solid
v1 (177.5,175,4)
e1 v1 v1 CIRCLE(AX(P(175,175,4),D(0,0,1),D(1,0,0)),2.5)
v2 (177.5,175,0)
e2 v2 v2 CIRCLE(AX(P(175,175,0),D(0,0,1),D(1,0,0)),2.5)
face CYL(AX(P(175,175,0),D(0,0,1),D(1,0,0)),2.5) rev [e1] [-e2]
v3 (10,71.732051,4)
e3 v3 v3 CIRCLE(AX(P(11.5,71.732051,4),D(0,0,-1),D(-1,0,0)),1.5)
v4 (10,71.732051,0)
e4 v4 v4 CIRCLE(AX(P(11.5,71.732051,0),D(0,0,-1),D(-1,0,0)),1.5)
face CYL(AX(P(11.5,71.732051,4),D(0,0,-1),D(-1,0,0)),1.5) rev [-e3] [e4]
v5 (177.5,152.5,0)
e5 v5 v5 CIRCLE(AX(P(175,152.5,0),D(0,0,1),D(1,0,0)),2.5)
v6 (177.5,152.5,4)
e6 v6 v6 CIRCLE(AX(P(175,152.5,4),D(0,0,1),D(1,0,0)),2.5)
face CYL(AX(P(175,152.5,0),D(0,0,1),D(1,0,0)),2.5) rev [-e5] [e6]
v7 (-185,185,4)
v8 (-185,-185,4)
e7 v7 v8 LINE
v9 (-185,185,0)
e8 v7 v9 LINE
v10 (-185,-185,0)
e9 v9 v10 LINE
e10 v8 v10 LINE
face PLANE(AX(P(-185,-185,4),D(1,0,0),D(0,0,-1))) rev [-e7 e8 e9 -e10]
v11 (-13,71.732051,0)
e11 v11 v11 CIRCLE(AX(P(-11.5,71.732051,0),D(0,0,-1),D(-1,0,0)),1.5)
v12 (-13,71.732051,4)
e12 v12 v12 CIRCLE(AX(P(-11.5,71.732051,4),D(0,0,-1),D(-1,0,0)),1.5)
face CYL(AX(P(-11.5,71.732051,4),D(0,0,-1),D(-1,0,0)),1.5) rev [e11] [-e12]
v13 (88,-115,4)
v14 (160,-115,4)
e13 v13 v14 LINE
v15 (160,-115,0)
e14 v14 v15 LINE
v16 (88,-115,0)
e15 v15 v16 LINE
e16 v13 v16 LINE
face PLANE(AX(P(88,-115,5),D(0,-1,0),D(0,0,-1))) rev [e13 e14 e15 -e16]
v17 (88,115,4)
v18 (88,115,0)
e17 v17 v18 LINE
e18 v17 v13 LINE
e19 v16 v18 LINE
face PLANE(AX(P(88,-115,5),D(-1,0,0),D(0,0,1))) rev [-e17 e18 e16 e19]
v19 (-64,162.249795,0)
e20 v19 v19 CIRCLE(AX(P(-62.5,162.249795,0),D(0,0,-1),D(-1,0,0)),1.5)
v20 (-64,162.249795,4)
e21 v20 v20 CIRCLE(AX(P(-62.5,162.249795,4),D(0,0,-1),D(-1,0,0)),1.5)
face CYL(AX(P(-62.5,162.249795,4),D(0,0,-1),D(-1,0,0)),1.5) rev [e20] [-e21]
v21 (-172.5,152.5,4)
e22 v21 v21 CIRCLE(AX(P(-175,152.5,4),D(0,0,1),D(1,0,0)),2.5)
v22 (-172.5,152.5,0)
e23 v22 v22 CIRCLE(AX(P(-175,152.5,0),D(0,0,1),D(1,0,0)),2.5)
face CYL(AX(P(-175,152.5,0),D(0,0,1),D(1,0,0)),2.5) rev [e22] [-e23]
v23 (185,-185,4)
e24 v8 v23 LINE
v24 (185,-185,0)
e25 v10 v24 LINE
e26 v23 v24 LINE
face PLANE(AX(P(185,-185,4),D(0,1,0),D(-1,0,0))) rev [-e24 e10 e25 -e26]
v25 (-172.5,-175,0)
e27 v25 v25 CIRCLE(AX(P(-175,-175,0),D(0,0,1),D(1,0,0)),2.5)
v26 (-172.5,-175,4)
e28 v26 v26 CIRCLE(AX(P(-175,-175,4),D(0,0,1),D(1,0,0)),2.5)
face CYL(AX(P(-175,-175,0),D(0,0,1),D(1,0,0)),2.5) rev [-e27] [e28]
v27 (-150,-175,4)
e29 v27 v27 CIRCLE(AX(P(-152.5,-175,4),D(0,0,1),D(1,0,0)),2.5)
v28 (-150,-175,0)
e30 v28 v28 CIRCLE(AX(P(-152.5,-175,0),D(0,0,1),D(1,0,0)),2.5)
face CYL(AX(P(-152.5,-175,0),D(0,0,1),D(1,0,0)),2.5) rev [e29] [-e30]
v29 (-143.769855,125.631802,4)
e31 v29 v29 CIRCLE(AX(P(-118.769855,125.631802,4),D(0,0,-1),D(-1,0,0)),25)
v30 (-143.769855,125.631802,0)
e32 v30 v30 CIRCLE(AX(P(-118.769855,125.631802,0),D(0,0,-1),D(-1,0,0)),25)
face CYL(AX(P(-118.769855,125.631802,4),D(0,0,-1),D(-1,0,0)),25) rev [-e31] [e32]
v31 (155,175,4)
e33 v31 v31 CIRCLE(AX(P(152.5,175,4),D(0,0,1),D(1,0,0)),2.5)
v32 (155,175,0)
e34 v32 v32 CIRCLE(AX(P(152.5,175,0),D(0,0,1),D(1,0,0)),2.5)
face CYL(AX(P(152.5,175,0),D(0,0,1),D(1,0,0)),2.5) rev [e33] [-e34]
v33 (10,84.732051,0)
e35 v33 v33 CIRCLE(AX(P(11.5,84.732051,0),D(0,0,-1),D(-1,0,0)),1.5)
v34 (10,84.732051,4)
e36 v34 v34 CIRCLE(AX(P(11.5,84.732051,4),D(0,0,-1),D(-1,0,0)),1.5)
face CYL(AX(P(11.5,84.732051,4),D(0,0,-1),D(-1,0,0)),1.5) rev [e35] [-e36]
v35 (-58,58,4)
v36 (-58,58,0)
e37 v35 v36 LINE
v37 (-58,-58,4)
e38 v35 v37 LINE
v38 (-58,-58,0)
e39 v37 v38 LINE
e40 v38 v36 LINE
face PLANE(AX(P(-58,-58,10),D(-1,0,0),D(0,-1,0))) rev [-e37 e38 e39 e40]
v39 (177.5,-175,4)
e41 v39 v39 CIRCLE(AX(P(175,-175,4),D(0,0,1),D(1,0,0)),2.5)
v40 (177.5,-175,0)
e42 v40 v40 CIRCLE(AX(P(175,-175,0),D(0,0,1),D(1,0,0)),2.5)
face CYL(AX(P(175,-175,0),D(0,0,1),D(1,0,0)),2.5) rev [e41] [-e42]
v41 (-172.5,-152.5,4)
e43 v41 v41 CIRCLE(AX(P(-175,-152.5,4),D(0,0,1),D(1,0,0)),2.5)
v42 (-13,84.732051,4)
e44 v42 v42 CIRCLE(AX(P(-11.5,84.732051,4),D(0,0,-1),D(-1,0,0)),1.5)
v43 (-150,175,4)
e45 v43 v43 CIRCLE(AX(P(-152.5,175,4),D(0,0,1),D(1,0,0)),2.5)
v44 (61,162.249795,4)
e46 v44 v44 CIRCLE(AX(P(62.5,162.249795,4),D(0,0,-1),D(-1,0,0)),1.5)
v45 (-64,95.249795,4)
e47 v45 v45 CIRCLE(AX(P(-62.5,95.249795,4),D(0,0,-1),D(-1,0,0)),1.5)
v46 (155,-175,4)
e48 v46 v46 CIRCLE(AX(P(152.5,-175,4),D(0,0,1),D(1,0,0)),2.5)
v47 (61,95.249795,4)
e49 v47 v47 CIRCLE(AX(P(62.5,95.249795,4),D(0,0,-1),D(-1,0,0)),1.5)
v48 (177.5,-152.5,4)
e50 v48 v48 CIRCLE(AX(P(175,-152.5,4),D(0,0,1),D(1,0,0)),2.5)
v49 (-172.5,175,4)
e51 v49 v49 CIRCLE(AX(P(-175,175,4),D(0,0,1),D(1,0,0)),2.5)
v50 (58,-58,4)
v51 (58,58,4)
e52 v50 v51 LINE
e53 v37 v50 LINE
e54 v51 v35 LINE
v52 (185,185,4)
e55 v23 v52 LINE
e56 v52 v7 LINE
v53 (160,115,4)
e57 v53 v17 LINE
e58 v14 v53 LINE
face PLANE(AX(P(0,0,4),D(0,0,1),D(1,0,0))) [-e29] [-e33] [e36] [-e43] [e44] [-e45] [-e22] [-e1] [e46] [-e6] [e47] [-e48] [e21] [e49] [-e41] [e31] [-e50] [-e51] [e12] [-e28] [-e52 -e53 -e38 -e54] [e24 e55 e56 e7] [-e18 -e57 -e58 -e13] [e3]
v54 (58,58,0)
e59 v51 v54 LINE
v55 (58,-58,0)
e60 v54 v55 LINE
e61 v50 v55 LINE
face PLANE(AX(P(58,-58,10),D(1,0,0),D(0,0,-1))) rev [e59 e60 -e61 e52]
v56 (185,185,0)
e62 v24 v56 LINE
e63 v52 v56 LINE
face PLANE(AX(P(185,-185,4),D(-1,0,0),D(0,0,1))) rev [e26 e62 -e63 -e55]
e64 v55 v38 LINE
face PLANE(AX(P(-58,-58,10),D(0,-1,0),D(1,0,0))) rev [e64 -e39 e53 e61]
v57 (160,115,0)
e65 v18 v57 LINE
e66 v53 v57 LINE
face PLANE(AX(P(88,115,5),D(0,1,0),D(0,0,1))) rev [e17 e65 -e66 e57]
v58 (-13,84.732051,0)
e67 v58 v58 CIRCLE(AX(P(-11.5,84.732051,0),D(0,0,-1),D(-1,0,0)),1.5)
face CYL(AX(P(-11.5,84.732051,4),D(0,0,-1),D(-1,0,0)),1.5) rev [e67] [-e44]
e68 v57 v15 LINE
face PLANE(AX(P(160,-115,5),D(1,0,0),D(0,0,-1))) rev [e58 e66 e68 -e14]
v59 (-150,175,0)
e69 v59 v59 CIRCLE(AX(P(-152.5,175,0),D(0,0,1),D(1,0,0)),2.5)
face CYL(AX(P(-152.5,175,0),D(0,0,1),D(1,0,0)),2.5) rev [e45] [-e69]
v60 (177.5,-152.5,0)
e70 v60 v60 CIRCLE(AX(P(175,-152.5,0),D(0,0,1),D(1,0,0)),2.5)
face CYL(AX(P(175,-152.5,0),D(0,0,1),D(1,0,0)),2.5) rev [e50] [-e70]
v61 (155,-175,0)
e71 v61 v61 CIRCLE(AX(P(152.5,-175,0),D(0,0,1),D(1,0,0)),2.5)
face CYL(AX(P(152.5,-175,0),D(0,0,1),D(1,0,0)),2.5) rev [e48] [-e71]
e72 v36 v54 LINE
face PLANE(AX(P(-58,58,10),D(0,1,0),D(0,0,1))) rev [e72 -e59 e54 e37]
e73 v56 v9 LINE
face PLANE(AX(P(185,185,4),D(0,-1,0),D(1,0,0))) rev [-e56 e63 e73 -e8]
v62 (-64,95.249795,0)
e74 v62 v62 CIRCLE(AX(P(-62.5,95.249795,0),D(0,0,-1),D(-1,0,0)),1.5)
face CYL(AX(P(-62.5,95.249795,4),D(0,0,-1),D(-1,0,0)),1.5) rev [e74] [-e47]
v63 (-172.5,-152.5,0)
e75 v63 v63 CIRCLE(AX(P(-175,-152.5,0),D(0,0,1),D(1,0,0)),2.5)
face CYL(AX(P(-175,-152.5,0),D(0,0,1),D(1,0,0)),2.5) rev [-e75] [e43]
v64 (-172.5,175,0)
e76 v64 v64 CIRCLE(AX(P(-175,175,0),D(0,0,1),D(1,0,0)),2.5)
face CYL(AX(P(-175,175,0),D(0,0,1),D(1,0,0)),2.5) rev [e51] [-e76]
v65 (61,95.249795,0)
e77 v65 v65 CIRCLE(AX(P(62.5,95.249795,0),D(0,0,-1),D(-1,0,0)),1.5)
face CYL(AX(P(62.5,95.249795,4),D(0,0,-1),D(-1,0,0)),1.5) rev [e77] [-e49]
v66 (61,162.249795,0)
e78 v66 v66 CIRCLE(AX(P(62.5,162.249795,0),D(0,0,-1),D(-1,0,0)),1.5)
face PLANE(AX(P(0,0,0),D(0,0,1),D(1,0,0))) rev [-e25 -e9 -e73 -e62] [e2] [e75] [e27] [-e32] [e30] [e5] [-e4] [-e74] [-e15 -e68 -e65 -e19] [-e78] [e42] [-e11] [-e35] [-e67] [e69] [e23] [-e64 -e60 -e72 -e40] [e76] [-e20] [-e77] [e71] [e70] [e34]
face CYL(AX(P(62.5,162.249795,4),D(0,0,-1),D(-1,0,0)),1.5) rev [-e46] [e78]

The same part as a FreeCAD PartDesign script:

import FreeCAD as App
import Part
import Sketcher


def add_polygon(sketch, points):
    """Adds a closed chain of lines whose ends are joined by coincident constraints."""
    first, n = sketch.GeometryCount, len(points)
    for a, b in zip(points, points[1:] + points[:1]):
        sketch.addGeometry(Part.LineSegment(App.Vector(*a, 0), App.Vector(*b, 0)), False)
    for i in range(n):
        sketch.addConstraint(Sketcher.Constraint("Coincident", first + i, 2, first + (i + 1) % n, 1))

doc = App.newDocument("Part")
body = doc.addObject("PartDesign::Body", "Body")

# Sketch on XY plane
sketch1 = body.newObject("Sketcher::SketchObject", "Sketch")
sketch1.AttachmentSupport = (doc.getObject("XY_Plane"), [""])
sketch1.MapMode = "FlatFace"
add_polygon(sketch1, [(-185, 185), (-185, -185), (185, -185), (185, 185)])  # lines 0-3
sketch1.addConstraint([
    Sketcher.Constraint("Vertical", 0),
    Sketcher.Constraint("Horizontal", 1),
    Sketcher.Constraint("Vertical", 2),
    Sketcher.Constraint("Horizontal", 3),
    Sketcher.Constraint("Symmetric", 0, 2, 2, 2, -1, 1),
    Sketcher.Constraint("Equal", 3, 0),
    Sketcher.Constraint("DistanceX", 1, 1, 1, 2, 370.0),
])
pad1 = body.newObject("PartDesign::Pad", "Pad")
pad1.Profile = sketch1
pad1.Length = 4

# Sketch on XY plane
sketch2 = body.newObject("Sketcher::SketchObject", "Sketch001")
sketch2.AttachmentSupport = (doc.getObject("XY_Plane"), [""])
sketch2.MapMode = "FlatFace"
sketch2.AttachmentOffset = App.Placement(App.Vector(0, 0, 4), App.Rotation())
sketch2.addGeometry([
    Part.Circle(App.Vector(-175, -175, 0), App.Vector(0, 0, 1), 2.5),  # 0
    Part.Circle(App.Vector(-152.5, -175, 0), App.Vector(0, 0, 1), 2.5),  # 1
    Part.Circle(App.Vector(-175, -152.5, 0), App.Vector(0, 0, 1), 2.5),  # 2
    Part.Circle(App.Vector(-152.5, 175, 0), App.Vector(0, 0, 1), 2.5),  # 3
    Part.Circle(App.Vector(-175, 152.5, 0), App.Vector(0, 0, 1), 2.5),  # 4
    Part.Circle(App.Vector(-175, 175, 0), App.Vector(0, 0, 1), 2.5),  # 5
    Part.Circle(App.Vector(175, 152.5, 0), App.Vector(0, 0, 1), 2.5),  # 6
    Part.Circle(App.Vector(152.5, 175, 0), App.Vector(0, 0, 1), 2.5),  # 7
    Part.Circle(App.Vector(175, 175, 0), App.Vector(0, 0, 1), 2.5),  # 8
    Part.Circle(App.Vector(152.5, -175, 0), App.Vector(0, 0, 1), 2.5),  # 9
    Part.Circle(App.Vector(175, -152.5, 0), App.Vector(0, 0, 1), 2.5),  # 10
    Part.Circle(App.Vector(175, -175, 0), App.Vector(0, 0, 1), 2.5),  # 11
], False)
sketch2.addConstraint([
    Sketcher.Constraint("Equal", 0, 1),
    Sketcher.Constraint("Equal", 1, 2),
    Sketcher.Constraint("Equal", 2, 3),
    Sketcher.Constraint("Equal", 3, 4),
    Sketcher.Constraint("Equal", 4, 5),
    Sketcher.Constraint("Equal", 5, 6),
    Sketcher.Constraint("Equal", 6, 7),
    Sketcher.Constraint("Equal", 7, 8),
    Sketcher.Constraint("Equal", 8, 9),
    Sketcher.Constraint("Equal", 9, 10),
    Sketcher.Constraint("Equal", 10, 11),
    Sketcher.Constraint("Symmetric", 2, 3, 6, 3, -1, 1),
    Sketcher.Constraint("Symmetric", 1, 3, 7, 3, -1, 1),
    Sketcher.Constraint("Symmetric", 0, 3, 8, 3, -1, 1),
    Sketcher.Constraint("Symmetric", 3, 3, 9, 3, -1, 1),
    Sketcher.Constraint("Symmetric", 4, 3, 10, 3, -1, 1),
    Sketcher.Constraint("Symmetric", 5, 3, 11, 3, -1, 1),
    Sketcher.Constraint("Symmetric", 4, 3, 6, 3, -2),
    Sketcher.Constraint("Symmetric", 3, 3, 7, 3, -2),
    Sketcher.Constraint("Symmetric", 5, 3, 8, 3, -2),
    Sketcher.Constraint("Horizontal", 0, 3, 1, 3),
    Sketcher.Constraint("Vertical", 0, 3, 2, 3),
    Sketcher.Constraint("Diameter", 0, 5.0),
    Sketcher.Constraint("DistanceX", 0, 3, -1, 1, 175.0),
    Sketcher.Constraint("DistanceY", 0, 3, -1, 1, 175.0),
    Sketcher.Constraint("DistanceY", 2, 3, 4, 3, 305.0),
    Sketcher.Constraint("DistanceX", 3, 3, 7, 3, 305.0),
])
pocket1 = body.newObject("PartDesign::Pocket", "Pocket")
pocket1.Profile = sketch2
pocket1.Type = "ThroughAll"

# Sketch on XY plane
sketch3 = body.newObject("Sketcher::SketchObject", "Sketch002")
sketch3.AttachmentSupport = (doc.getObject("XY_Plane"), [""])
sketch3.MapMode = "FlatFace"
sketch3.addGeometry([
    Part.Circle(App.Vector(62.5, 162.2, 0), App.Vector(0, 0, 1), 1.5),
    Part.Circle(App.Vector(62.5, 95.2, 0), App.Vector(0, 0, 1), 1.5),
    Part.Circle(App.Vector(-62.5, 95.2, 0), App.Vector(0, 0, 1), 1.5),
    Part.Circle(App.Vector(-62.5, 162.2, 0), App.Vector(0, 0, 1), 1.5),
], False)
sketch3.addConstraint([
    Sketcher.Constraint("Equal", 0, 1),
    Sketcher.Constraint("Equal", 1, 2),
    Sketcher.Constraint("Equal", 2, 3),
    Sketcher.Constraint("Symmetric", 1, 3, 2, 3, -2),
    Sketcher.Constraint("Symmetric", 0, 3, 3, 3, -2),
    Sketcher.Constraint("Vertical", 0, 3, 1, 3),
    Sketcher.Constraint("Diameter", 0, 3.0),
    Sketcher.Constraint("DistanceY", 1, 3, 0, 3, 67.0),
    Sketcher.Constraint("DistanceX", 2, 3, 1, 3, 125.0),
    Sketcher.Constraint("DistanceY", -1, 1, 0, 3, 162.249795),
])
pocket2 = body.newObject("PartDesign::Pocket", "Pocket001")
pocket2.Profile = sketch3
pocket2.Type = "ThroughAll"
pocket2.Reversed = True

# Sketch on XY plane
sketch4 = body.newObject("Sketcher::SketchObject", "Sketch003")
sketch4.AttachmentSupport = (doc.getObject("XY_Plane"), [""])
sketch4.MapMode = "FlatFace"
sketch4.addGeometry(Part.Circle(App.Vector(-119, 126, 0), App.Vector(0, 0, 1), 25), False)
sketch4.addConstraint([
    Sketcher.Constraint("Diameter", 0, 50.0),
    Sketcher.Constraint("DistanceY", -1, 1, 0, 3, 125.631802),
    Sketcher.Constraint("DistanceX", 0, 3, -1, 1, 118.769855),
])
pocket3 = body.newObject("PartDesign::Pocket", "Pocket002")
pocket3.Profile = sketch4
pocket3.Type = "ThroughAll"
pocket3.Reversed = True

# Sketch on XY plane
sketch5 = body.newObject("Sketcher::SketchObject", "Sketch004")
sketch5.AttachmentSupport = (doc.getObject("XY_Plane"), [""])
sketch5.MapMode = "FlatFace"
add_polygon(sketch5, [(58, 58), (58, -58), (-58, -58), (-58, 58)])  # lines 0-3
sketch5.addConstraint([
    Sketcher.Constraint("Vertical", 0),
    Sketcher.Constraint("Horizontal", 1),
    Sketcher.Constraint("Vertical", 2),
    Sketcher.Constraint("Horizontal", 3),
    Sketcher.Constraint("Symmetric", 0, 2, 2, 2, -1, 1),
    Sketcher.Constraint("Equal", 3, 0),
    Sketcher.Constraint("DistanceX", 1, 2, 1, 1, 116.0),
])
pocket4 = body.newObject("PartDesign::Pocket", "Pocket003")
pocket4.Profile = sketch5
pocket4.Length = 10
pocket4.Reversed = True

# Sketch on XY plane
sketch6 = body.newObject("Sketcher::SketchObject", "Sketch005")
sketch6.AttachmentSupport = (doc.getObject("XY_Plane"), [""])
sketch6.MapMode = "FlatFace"
add_polygon(sketch6, [(160, 115), (160, -115), (88, -115), (88, 115)])  # lines 0-3
sketch6.addConstraint([
    Sketcher.Constraint("Vertical", 0),
    Sketcher.Constraint("Horizontal", 1),
    Sketcher.Constraint("Vertical", 2),
    Sketcher.Constraint("Horizontal", 3),
    Sketcher.Constraint("DistanceX", 1, 2, 1, 1, 72.0),
    Sketcher.Constraint("DistanceY", 0, 2, 0, 1, 230.0),
    Sketcher.Constraint("DistanceX", -1, 1, 0, 2, 160.0),
    Sketcher.Constraint("DistanceY", 0, 2, -1, 1, 115.0),
])
pocket5 = body.newObject("PartDesign::Pocket", "Pocket004")
pocket5.Profile = sketch6
pocket5.Length = 5
pocket5.Reversed = True

# Sketch on XY plane
sketch7 = body.newObject("Sketcher::SketchObject", "Sketch006")
sketch7.AttachmentSupport = (doc.getObject("XY_Plane"), [""])
sketch7.MapMode = "FlatFace"
sketch7.addGeometry([
    Part.Circle(App.Vector(11.5, 71.7, 0), App.Vector(0, 0, 1), 1.5),
    Part.Circle(App.Vector(-11.5, 71.7, 0), App.Vector(0, 0, 1), 1.5),
    Part.Circle(App.Vector(11.5, 84.7, 0), App.Vector(0, 0, 1), 1.5),
    Part.Circle(App.Vector(-11.5, 84.7, 0), App.Vector(0, 0, 1), 1.5),
], False)
sketch7.addConstraint([
    Sketcher.Constraint("Equal", 0, 1),
    Sketcher.Constraint("Equal", 1, 2),
    Sketcher.Constraint("Equal", 2, 3),
    Sketcher.Constraint("Symmetric", 0, 3, 1, 3, -2),
    Sketcher.Constraint("Symmetric", 2, 3, 3, 3, -2),
    Sketcher.Constraint("Vertical", 0, 3, 2, 3),
    Sketcher.Constraint("Diameter", 0, 3.0),
    Sketcher.Constraint("DistanceX", 1, 3, 0, 3, 23.0),
    Sketcher.Constraint("DistanceY", 0, 3, 2, 3, 13.0),
    Sketcher.Constraint("DistanceY", -1, 1, 0, 3, 71.732051),
])
pocket6 = body.newObject("PartDesign::Pocket", "Pocket005")
pocket6.Profile = sketch7
pocket6.Type = "ThroughAll"
pocket6.Reversed = True

doc.recompute()
